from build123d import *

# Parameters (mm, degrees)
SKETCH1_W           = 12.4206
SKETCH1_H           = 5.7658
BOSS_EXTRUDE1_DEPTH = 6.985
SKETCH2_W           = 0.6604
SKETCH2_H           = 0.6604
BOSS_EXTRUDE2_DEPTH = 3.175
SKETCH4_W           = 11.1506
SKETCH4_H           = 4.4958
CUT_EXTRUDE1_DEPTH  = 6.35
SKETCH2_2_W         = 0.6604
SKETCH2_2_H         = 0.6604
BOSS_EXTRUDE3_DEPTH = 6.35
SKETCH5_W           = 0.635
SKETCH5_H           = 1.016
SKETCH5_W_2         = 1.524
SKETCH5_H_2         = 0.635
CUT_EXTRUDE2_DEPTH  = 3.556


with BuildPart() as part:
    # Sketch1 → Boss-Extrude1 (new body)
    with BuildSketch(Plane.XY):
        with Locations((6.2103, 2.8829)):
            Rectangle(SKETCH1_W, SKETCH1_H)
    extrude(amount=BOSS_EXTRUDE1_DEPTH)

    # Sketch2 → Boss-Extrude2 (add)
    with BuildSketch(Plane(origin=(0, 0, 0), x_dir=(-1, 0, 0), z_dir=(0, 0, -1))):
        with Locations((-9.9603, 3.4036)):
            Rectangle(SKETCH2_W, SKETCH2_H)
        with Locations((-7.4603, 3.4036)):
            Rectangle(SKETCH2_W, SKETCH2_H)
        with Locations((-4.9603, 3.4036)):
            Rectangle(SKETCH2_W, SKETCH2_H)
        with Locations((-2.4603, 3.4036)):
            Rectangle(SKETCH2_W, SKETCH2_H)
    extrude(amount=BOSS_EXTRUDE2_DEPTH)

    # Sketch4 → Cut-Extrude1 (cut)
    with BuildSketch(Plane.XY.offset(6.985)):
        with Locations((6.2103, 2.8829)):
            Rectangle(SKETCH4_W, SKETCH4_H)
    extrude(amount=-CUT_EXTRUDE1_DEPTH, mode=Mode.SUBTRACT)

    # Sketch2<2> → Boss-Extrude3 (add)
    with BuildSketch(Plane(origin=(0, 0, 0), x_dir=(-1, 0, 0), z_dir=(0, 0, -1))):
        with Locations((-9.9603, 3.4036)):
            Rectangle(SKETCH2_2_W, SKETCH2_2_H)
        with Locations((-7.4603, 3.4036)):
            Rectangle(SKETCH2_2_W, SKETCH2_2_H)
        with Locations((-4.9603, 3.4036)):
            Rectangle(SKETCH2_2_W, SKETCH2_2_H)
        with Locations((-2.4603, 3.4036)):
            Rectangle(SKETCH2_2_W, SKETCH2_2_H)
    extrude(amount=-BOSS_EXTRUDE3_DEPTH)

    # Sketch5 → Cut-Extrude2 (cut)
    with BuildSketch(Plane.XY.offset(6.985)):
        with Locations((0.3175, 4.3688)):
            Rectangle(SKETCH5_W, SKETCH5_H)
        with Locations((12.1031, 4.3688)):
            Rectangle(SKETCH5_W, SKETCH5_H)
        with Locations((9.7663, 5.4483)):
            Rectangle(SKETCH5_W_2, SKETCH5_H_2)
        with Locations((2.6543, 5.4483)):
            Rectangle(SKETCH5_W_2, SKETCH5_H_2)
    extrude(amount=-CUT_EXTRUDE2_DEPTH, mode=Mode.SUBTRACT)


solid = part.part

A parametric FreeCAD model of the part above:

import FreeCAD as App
import Part
import Sketcher
Q = App.Units.Quantity

doc = App.newDocument("Part")
body = doc.addObject("PartDesign::Body", "Body")

# Sketch on XY plane
sketch1 = body.newObject("Sketcher::SketchObject", "Sketch")
sketch1.AttachmentSupport = (doc.getObject("XY_Plane"), [""])
sketch1.MapMode = "FlatFace"
sketch1.addGeometry([
    Part.LineSegment(App.Vector(0, 6, 0), App.Vector(0, 0, 0)),
    Part.LineSegment(App.Vector(0, 0, 0), App.Vector(12, 0, 0)),
    Part.LineSegment(App.Vector(12, 0, 0), App.Vector(12, 6, 0)),
    Part.LineSegment(App.Vector(12, 6, 0), App.Vector(0, 6, 0)),
], False)
sketch1.addConstraint([
    Sketcher.Constraint("Coincident", 0, 2, 1, 1),
    Sketcher.Constraint("Coincident", 1, 2, 2, 1),
    Sketcher.Constraint("Coincident", 2, 2, 3, 1),
    Sketcher.Constraint("Coincident", 3, 2, 0, 1),
    Sketcher.Constraint("Vertical", 0),
    Sketcher.Constraint("Horizontal", 1),
    Sketcher.Constraint("Vertical", 2),
    Sketcher.Constraint("Horizontal", 3),
    Sketcher.Constraint("Coincident", 0, 2, -1, 1),
    Sketcher.Constraint("DistanceX", 1, 1, 1, 2, Q("0.489 in")),
    Sketcher.Constraint("DistanceY", 0, 2, 0, 1, Q("0.227 in")),
])
pad1 = body.newObject("PartDesign::Pad", "Pad")
pad1.Profile = sketch1
pad1.Length = Q("0.275 in")

# Sketch on XY plane
sketch2 = body.newObject("Sketcher::SketchObject", "Sketch001")
sketch2.AttachmentSupport = (doc.getObject("XY_Plane"), [""])
sketch2.MapMode = "FlatFace"
sketch2.addGeometry([
    Part.LineSegment(App.Vector(10.3, 3.7, 0), App.Vector(10.3, 3.1, 0)),  # 0
    Part.LineSegment(App.Vector(10.3, 3.1, 0), App.Vector(9.6, 3.1, 0)),  # 1
    Part.LineSegment(App.Vector(9.6, 3.1, 0), App.Vector(9.6, 3.7, 0)),  # 2
    Part.LineSegment(App.Vector(9.6, 3.7, 0), App.Vector(10.3, 3.7, 0)),  # 3
    Part.LineSegment(App.Vector(7.8, 3.7, 0), App.Vector(7.8, 3.1, 0)),  # 4
    Part.LineSegment(App.Vector(7.8, 3.1, 0), App.Vector(7.1, 3.1, 0)),  # 5
    Part.LineSegment(App.Vector(7.1, 3.1, 0), App.Vector(7.1, 3.7, 0)),  # 6
    Part.LineSegment(App.Vector(7.1, 3.7, 0), App.Vector(7.8, 3.7, 0)),  # 7
    Part.LineSegment(App.Vector(5.3, 3.7, 0), App.Vector(5.3, 3.1, 0)),  # 8
    Part.LineSegment(App.Vector(5.3, 3.1, 0), App.Vector(4.6, 3.1, 0)),  # 9
    Part.LineSegment(App.Vector(4.6, 3.1, 0), App.Vector(4.6, 3.7, 0)),  # 10
    Part.LineSegment(App.Vector(4.6, 3.7, 0), App.Vector(5.3, 3.7, 0)),  # 11
    Part.LineSegment(App.Vector(2.8, 3.7, 0), App.Vector(2.8, 3.1, 0)),  # 12
    Part.LineSegment(App.Vector(2.8, 3.1, 0), App.Vector(2.1, 3.1, 0)),  # 13
    Part.LineSegment(App.Vector(2.1, 3.1, 0), App.Vector(2.1, 3.7, 0)),  # 14
    Part.LineSegment(App.Vector(2.1, 3.7, 0), App.Vector(2.8, 3.7, 0)),  # 15
], False)
sketch2.addConstraint([
    Sketcher.Constraint("Coincident", 0, 2, 1, 1),
    Sketcher.Constraint("Coincident", 1, 2, 2, 1),
    Sketcher.Constraint("Coincident", 2, 2, 3, 1),
    Sketcher.Constraint("Coincident", 3, 2, 0, 1),
    Sketcher.Constraint("Coincident", 4, 2, 5, 1),
    Sketcher.Constraint("Coincident", 5, 2, 6, 1),
    Sketcher.Constraint("Coincident", 6, 2, 7, 1),
    Sketcher.Constraint("Coincident", 7, 2, 4, 1),
    Sketcher.Constraint("Coincident", 8, 2, 9, 1),
    Sketcher.Constraint("Coincident", 9, 2, 10, 1),
    Sketcher.Constraint("Coincident", 10, 2, 11, 1),
    Sketcher.Constraint("Coincident", 11, 2, 8, 1),
    Sketcher.Constraint("Coincident", 12, 2, 13, 1),
    Sketcher.Constraint("Coincident", 13, 2, 14, 1),
    Sketcher.Constraint("Coincident", 14, 2, 15, 1),
    Sketcher.Constraint("Coincident", 15, 2, 12, 1),
    Sketcher.Constraint("Vertical", 0),
    Sketcher.Constraint("Horizontal", 1),
    Sketcher.Constraint("Vertical", 2),
    Sketcher.Constraint("Horizontal", 3),
    Sketcher.Constraint("Vertical", 4),
    Sketcher.Constraint("Horizontal", 5),
    Sketcher.Constraint("Vertical", 6),
    Sketcher.Constraint("Horizontal", 7),
    Sketcher.Constraint("Vertical", 8),
    Sketcher.Constraint("Horizontal", 9),
    Sketcher.Constraint("Vertical", 10),
    Sketcher.Constraint("Horizontal", 11),
    Sketcher.Constraint("Vertical", 12),
    Sketcher.Constraint("Horizontal", 13),
    Sketcher.Constraint("Vertical", 14),
    Sketcher.Constraint("Horizontal", 15),
    Sketcher.Constraint("Horizontal", 1, 2, 4, 2),
    Sketcher.Constraint("Horizontal", 3, 2, 6, 2),
    Sketcher.Constraint("Horizontal", 5, 2, 8, 2),
    Sketcher.Constraint("Horizontal", 7, 2, 10, 2),
    Sketcher.Constraint("Horizontal", 9, 2, 12, 2),
    Sketcher.Constraint("Horizontal", 11, 2, 14, 2),
    Sketcher.Constraint("Equal", 3, 5),
    Sketcher.Constraint("Equal", 7, 9),
    Sketcher.Constraint("Equal", 11, 13),
    Sketcher.Constraint("Equal", 15, 0),
    Sketcher.Constraint("DistanceX", 1, 2, 1, 1, Q("0.026 in")),
    Sketcher.Constraint("DistanceY", -1, 1, 0, 2, Q("0.121 in")),
    Sketcher.Constraint("DistanceX", -1, 1, 0, 2, 10.2905),
    Sketcher.Constraint("DistanceX", -1, 1, 4, 2, 7.7905),
    Sketcher.Constraint("DistanceX", -1, 1, 8, 2, 5.2905),
    Sketcher.Constraint("DistanceX", -1, 1, 12, 2, 2.7905),
])
pad2 = body.newObject("PartDesign::Pad", "Pad001")
pad2.Profile = sketch2
pad2.Length = Q("0.125 in")
pad2.Reversed = True

# Sketch on XY plane
sketch3 = body.newObject("Sketcher::SketchObject", "Sketch002")
sketch3.AttachmentSupport = (doc.getObject("XY_Plane"), [""])
sketch3.MapMode = "FlatFace"
sketch3.AttachmentOffset = App.Placement(App.Vector(0, 0, 0.275 * 25.4), App.Rotation())
sketch3.addGeometry([
    Part.LineSegment(App.Vector(0.6, 5.1, 0), App.Vector(0.6, 0.6, 0)),
    Part.LineSegment(App.Vector(0.6, 0.6, 0), App.Vector(11.8, 0.6, 0)),
    Part.LineSegment(App.Vector(11.8, 0.6, 0), App.Vector(11.8, 5.1, 0)),
    Part.LineSegment(App.Vector(11.8, 5.1, 0), App.Vector(0.6, 5.1, 0)),
], False)
sketch3.addConstraint([
    Sketcher.Constraint("Coincident", 0, 2, 1, 1),
    Sketcher.Constraint("Coincident", 1, 2, 2, 1),
    Sketcher.Constraint("Coincident", 2, 2, 3, 1),
    Sketcher.Constraint("Coincident", 3, 2, 0, 1),
    Sketcher.Constraint("Vertical", 0),
    Sketcher.Constraint("Horizontal", 1),
    Sketcher.Constraint("Vertical", 2),
    Sketcher.Constraint("Horizontal", 3),
    Sketcher.Constraint("DistanceX", 1, 1, 1, 2, Q("0.439 in")),
    Sketcher.Constraint("DistanceY", 0, 2, 0, 1, Q("0.177 in")),
    Sketcher.Constraint("DistanceX", -1, 1, 0, 2, Q("0.025 in")),
    Sketcher.Constraint("DistanceY", -1, 1, 0, 2, Q("0.025 in")),
])
pocket1 = body.newObject("PartDesign::Pocket", "Pocket")
pocket1.Profile = sketch3
pocket1.Length = Q("0.25 in")

# Sketch on XY plane
sketch4 = body.newObject("Sketcher::SketchObject", "Sketch003")
sketch4.AttachmentSupport = (doc.getObject("XY_Plane"), [""])
sketch4.MapMode = "FlatFace"
sketch4.addGeometry([
    Part.LineSegment(App.Vector(10.3, 3.7, 0), App.Vector(10.3, 3.1, 0)),  # 0
    Part.LineSegment(App.Vector(10.3, 3.1, 0), App.Vector(9.6, 3.1, 0)),  # 1
    Part.LineSegment(App.Vector(9.6, 3.1, 0), App.Vector(9.6, 3.7, 0)),  # 2
    Part.LineSegment(App.Vector(9.6, 3.7, 0), App.Vector(10.3, 3.7, 0)),  # 3
    Part.LineSegment(App.Vector(7.8, 3.7, 0), App.Vector(7.8, 3.1, 0)),  # 4
    Part.LineSegment(App.Vector(7.8, 3.1, 0), App.Vector(7.1, 3.1, 0)),  # 5
    Part.LineSegment(App.Vector(7.1, 3.1, 0), App.Vector(7.1, 3.7, 0)),  # 6
    Part.LineSegment(App.Vector(7.1, 3.7, 0), App.Vector(7.8, 3.7, 0)),  # 7
    Part.LineSegment(App.Vector(5.3, 3.7, 0), App.Vector(5.3, 3.1, 0)),  # 8
    Part.LineSegment(App.Vector(5.3, 3.1, 0), App.Vector(4.6, 3.1, 0)),  # 9
    Part.LineSegment(App.Vector(4.6, 3.1, 0), App.Vector(4.6, 3.7, 0)),  # 10
    Part.LineSegment(App.Vector(4.6, 3.7, 0), App.Vector(5.3, 3.7, 0)),  # 11
    Part.LineSegment(App.Vector(2.8, 3.7, 0), App.Vector(2.8, 3.1, 0)),  # 12
    Part.LineSegment(App.Vector(2.8, 3.1, 0), App.Vector(2.1, 3.1, 0)),  # 13
    Part.LineSegment(App.Vector(2.1, 3.1, 0), App.Vector(2.1, 3.7, 0)),  # 14
    Part.LineSegment(App.Vector(2.1, 3.7, 0), App.Vector(2.8, 3.7, 0)),  # 15
], False)
sketch4.addConstraint([
    Sketcher.Constraint("Coincident", 0, 2, 1, 1),
    Sketcher.Constraint("Coincident", 1, 2, 2, 1),
    Sketcher.Constraint("Coincident", 2, 2, 3, 1),
    Sketcher.Constraint("Coincident", 3, 2, 0, 1),
    Sketcher.Constraint("Coincident", 4, 2, 5, 1),
    Sketcher.Constraint("Coincident", 5, 2, 6, 1),
    Sketcher.Constraint("Coincident", 6, 2, 7, 1),
    Sketcher.Constraint("Coincident", 7, 2, 4, 1),
    Sketcher.Constraint("Coincident", 8, 2, 9, 1),
    Sketcher.Constraint("Coincident", 9, 2, 10, 1),
    Sketcher.Constraint("Coincident", 10, 2, 11, 1),
    Sketcher.Constraint("Coincident", 11, 2, 8, 1),
    Sketcher.Constraint("Coincident", 12, 2, 13, 1),
    Sketcher.Constraint("Coincident", 13, 2, 14, 1),
    Sketcher.Constraint("Coincident", 14, 2, 15, 1),
    Sketcher.Constraint("Coincident", 15, 2, 12, 1),
    Sketcher.Constraint("Vertical", 0),
    Sketcher.Constraint("Horizontal", 1),
    Sketcher.Constraint("Vertical", 2),
    Sketcher.Constraint("Horizontal", 3),
    Sketcher.Constraint("Vertical", 4),
    Sketcher.Constraint("Horizontal", 5),
    Sketcher.Constraint("Vertical", 6),
    Sketcher.Constraint("Horizontal", 7),
    Sketcher.Constraint("Vertical", 8),
    Sketcher.Constraint("Horizontal", 9),
    Sketcher.Constraint("Vertical", 10),
    Sketcher.Constraint("Horizontal", 11),
    Sketcher.Constraint("Vertical", 12),
    Sketcher.Constraint("Horizontal", 13),
    Sketcher.Constraint("Vertical", 14),
    Sketcher.Constraint("Horizontal", 15),
    Sketcher.Constraint("Horizontal", 1, 2, 4, 2),
    Sketcher.Constraint("Horizontal", 3, 2, 6, 2),
    Sketcher.Constraint("Horizontal", 5, 2, 8, 2),
    Sketcher.Constraint("Horizontal", 7, 2, 10, 2),
    Sketcher.Constraint("Horizontal", 9, 2, 12, 2),
    Sketcher.Constraint("Horizontal", 11, 2, 14, 2),
    Sketcher.Constraint("Equal", 3, 5),
    Sketcher.Constraint("Equal", 7, 9),
    Sketcher.Constraint("Equal", 11, 13),
    Sketcher.Constraint("Equal", 15, 0),
    Sketcher.Constraint("DistanceX", 1, 2, 1, 1, Q("0.026 in")),
    Sketcher.Constraint("DistanceY", -1, 1, 0, 2, Q("0.121 in")),
    Sketcher.Constraint("DistanceX", -1, 1, 0, 2, 10.2905),
    Sketcher.Constraint("DistanceX", -1, 1, 4, 2, 7.7905),
    Sketcher.Constraint("DistanceX", -1, 1, 8, 2, 5.2905),
    Sketcher.Constraint("DistanceX", -1, 1, 12, 2, 2.7905),
])
pad3 = body.newObject("PartDesign::Pad", "Pad002")
pad3.Profile = sketch4
pad3.Length = Q("0.25 in")

# Sketch on XY plane
sketch5 = body.newObject("Sketcher::SketchObject", "Sketch004")
sketch5.AttachmentSupport = (doc.getObject("XY_Plane"), [""])
sketch5.MapMode = "FlatFace"
sketch5.AttachmentOffset = App.Placement(App.Vector(0, 0, 0.275 * 25.4), App.Rotation())
sketch5.addGeometry([
    Part.LineSegment(App.Vector(0, 4.9, 0), App.Vector(0, 3.9, 0)),  # 0
    Part.LineSegment(App.Vector(0, 3.9, 0), App.Vector(0.6, 3.9, 0)),  # 1
    Part.LineSegment(App.Vector(0.6, 3.9, 0), App.Vector(0.6, 4.9, 0)),  # 2
    Part.LineSegment(App.Vector(0.6, 4.9, 0), App.Vector(0, 4.9, 0)),  # 3
    Part.LineSegment(App.Vector(11.8, 4.9, 0), App.Vector(11.8, 3.9, 0)),  # 4
    Part.LineSegment(App.Vector(11.8, 3.9, 0), App.Vector(12.4, 3.9, 0)),  # 5
    Part.LineSegment(App.Vector(12.4, 3.9, 0), App.Vector(12.4, 4.9, 0)),  # 6
    Part.LineSegment(App.Vector(12.4, 4.9, 0), App.Vector(11.8, 4.9, 0)),  # 7
    Part.LineSegment(App.Vector(9, 5.8, 0), App.Vector(9, 5.1, 0)),  # 8
    Part.LineSegment(App.Vector(9, 5.1, 0), App.Vector(10.5, 5.1, 0)),  # 9
    Part.LineSegment(App.Vector(10.5, 5.1, 0), App.Vector(10.5, 5.8, 0)),  # 10
    Part.LineSegment(App.Vector(10.5, 5.8, 0), App.Vector(9, 5.8, 0)),  # 11
    Part.LineSegment(App.Vector(1.9, 5.8, 0), App.Vector(1.9, 5.1, 0)),  # 12
    Part.LineSegment(App.Vector(1.9, 5.1, 0), App.Vector(3.4, 5.1, 0)),  # 13
    Part.LineSegment(App.Vector(3.4, 5.1, 0), App.Vector(3.4, 5.8, 0)),  # 14
    Part.LineSegment(App.Vector(3.4, 5.8, 0), App.Vector(1.9, 5.8, 0)),  # 15
], False)
sketch5.addConstraint([
    Sketcher.Constraint("Coincident", 0, 2, 1, 1),
    Sketcher.Constraint("Coincident", 1, 2, 2, 1),
    Sketcher.Constraint("Coincident", 2, 2, 3, 1),
    Sketcher.Constraint("Coincident", 3, 2, 0, 1),
    Sketcher.Constraint("Coincident", 4, 2, 5, 1),
    Sketcher.Constraint("Coincident", 5, 2, 6, 1),
    Sketcher.Constraint("Coincident", 6, 2, 7, 1),
    Sketcher.Constraint("Coincident", 7, 2, 4, 1),
    Sketcher.Constraint("Coincident", 8, 2, 9, 1),
    Sketcher.Constraint("Coincident", 9, 2, 10, 1),
    Sketcher.Constraint("Coincident", 10, 2, 11, 1),
    Sketcher.Constraint("Coincident", 11, 2, 8, 1),
    Sketcher.Constraint("Coincident", 12, 2, 13, 1),
    Sketcher.Constraint("Coincident", 13, 2, 14, 1),
    Sketcher.Constraint("Coincident", 14, 2, 15, 1),
    Sketcher.Constraint("Coincident", 15, 2, 12, 1),
    Sketcher.Constraint("Vertical", 0),
    Sketcher.Constraint("Horizontal", 1),
    Sketcher.Constraint("Vertical", 2),
    Sketcher.Constraint("Horizontal", 3),
    Sketcher.Constraint("Vertical", 4),
    Sketcher.Constraint("Horizontal", 5),
    Sketcher.Constraint("Vertical", 6),
    Sketcher.Constraint("Horizontal", 7),
    Sketcher.Constraint("Vertical", 8),
    Sketcher.Constraint("Horizontal", 9),
    Sketcher.Constraint("Vertical", 10),
    Sketcher.Constraint("Horizontal", 11),
    Sketcher.Constraint("Vertical", 12),
    Sketcher.Constraint("Horizontal", 13),
    Sketcher.Constraint("Vertical", 14),
    Sketcher.Constraint("Horizontal", 15),
    Sketcher.Constraint("PointOnObject", 0, 2, -2),
    Sketcher.Constraint("Horizontal", 1, 2, 4, 2),
    Sketcher.Constraint("Horizontal", 3, 2, 6, 2),
    Sketcher.Constraint("Horizontal", 9, 2, 12, 2),
    Sketcher.Constraint("Horizontal", 11, 2, 14, 2),
    Sketcher.Constraint("Equal", 3, 5),
    Sketcher.Constraint("Equal", 11, 13),
    Sketcher.Constraint("Equal", 7, 8),
    Sketcher.Constraint("DistanceX", 9, 1, 9, 2, Q("0.06 in")),
    Sketcher.Constraint("DistanceY", 0, 2, 0, 1, Q("0.04 in")),
    Sketcher.Constraint("DistanceX", 1, 1, 1, 2, Q("0.025 in")),
    Sketcher.Constraint("DistanceY", 7, 2, 8, 2, Q("0.01 in")),
    Sketcher.Constraint("DistanceX", 12, 2, 8, 2, Q("0.28 in")),
    Sketcher.Constraint("DistanceY", -1, 1, 0, 2, Q("0.152 in")),
    Sketcher.Constraint("DistanceX", -1, 1, 4, 2, Q("0.464 in")),
    Sketcher.Constraint("DistanceX", -1, 1, 8, 2, Q("0.3545 in")),
])
pocket2 = body.newObject("PartDesign::Pocket", "Pocket001")
pocket2.Profile = sketch5
pocket2.Length = Q("0.14 in")

doc.recompute()
